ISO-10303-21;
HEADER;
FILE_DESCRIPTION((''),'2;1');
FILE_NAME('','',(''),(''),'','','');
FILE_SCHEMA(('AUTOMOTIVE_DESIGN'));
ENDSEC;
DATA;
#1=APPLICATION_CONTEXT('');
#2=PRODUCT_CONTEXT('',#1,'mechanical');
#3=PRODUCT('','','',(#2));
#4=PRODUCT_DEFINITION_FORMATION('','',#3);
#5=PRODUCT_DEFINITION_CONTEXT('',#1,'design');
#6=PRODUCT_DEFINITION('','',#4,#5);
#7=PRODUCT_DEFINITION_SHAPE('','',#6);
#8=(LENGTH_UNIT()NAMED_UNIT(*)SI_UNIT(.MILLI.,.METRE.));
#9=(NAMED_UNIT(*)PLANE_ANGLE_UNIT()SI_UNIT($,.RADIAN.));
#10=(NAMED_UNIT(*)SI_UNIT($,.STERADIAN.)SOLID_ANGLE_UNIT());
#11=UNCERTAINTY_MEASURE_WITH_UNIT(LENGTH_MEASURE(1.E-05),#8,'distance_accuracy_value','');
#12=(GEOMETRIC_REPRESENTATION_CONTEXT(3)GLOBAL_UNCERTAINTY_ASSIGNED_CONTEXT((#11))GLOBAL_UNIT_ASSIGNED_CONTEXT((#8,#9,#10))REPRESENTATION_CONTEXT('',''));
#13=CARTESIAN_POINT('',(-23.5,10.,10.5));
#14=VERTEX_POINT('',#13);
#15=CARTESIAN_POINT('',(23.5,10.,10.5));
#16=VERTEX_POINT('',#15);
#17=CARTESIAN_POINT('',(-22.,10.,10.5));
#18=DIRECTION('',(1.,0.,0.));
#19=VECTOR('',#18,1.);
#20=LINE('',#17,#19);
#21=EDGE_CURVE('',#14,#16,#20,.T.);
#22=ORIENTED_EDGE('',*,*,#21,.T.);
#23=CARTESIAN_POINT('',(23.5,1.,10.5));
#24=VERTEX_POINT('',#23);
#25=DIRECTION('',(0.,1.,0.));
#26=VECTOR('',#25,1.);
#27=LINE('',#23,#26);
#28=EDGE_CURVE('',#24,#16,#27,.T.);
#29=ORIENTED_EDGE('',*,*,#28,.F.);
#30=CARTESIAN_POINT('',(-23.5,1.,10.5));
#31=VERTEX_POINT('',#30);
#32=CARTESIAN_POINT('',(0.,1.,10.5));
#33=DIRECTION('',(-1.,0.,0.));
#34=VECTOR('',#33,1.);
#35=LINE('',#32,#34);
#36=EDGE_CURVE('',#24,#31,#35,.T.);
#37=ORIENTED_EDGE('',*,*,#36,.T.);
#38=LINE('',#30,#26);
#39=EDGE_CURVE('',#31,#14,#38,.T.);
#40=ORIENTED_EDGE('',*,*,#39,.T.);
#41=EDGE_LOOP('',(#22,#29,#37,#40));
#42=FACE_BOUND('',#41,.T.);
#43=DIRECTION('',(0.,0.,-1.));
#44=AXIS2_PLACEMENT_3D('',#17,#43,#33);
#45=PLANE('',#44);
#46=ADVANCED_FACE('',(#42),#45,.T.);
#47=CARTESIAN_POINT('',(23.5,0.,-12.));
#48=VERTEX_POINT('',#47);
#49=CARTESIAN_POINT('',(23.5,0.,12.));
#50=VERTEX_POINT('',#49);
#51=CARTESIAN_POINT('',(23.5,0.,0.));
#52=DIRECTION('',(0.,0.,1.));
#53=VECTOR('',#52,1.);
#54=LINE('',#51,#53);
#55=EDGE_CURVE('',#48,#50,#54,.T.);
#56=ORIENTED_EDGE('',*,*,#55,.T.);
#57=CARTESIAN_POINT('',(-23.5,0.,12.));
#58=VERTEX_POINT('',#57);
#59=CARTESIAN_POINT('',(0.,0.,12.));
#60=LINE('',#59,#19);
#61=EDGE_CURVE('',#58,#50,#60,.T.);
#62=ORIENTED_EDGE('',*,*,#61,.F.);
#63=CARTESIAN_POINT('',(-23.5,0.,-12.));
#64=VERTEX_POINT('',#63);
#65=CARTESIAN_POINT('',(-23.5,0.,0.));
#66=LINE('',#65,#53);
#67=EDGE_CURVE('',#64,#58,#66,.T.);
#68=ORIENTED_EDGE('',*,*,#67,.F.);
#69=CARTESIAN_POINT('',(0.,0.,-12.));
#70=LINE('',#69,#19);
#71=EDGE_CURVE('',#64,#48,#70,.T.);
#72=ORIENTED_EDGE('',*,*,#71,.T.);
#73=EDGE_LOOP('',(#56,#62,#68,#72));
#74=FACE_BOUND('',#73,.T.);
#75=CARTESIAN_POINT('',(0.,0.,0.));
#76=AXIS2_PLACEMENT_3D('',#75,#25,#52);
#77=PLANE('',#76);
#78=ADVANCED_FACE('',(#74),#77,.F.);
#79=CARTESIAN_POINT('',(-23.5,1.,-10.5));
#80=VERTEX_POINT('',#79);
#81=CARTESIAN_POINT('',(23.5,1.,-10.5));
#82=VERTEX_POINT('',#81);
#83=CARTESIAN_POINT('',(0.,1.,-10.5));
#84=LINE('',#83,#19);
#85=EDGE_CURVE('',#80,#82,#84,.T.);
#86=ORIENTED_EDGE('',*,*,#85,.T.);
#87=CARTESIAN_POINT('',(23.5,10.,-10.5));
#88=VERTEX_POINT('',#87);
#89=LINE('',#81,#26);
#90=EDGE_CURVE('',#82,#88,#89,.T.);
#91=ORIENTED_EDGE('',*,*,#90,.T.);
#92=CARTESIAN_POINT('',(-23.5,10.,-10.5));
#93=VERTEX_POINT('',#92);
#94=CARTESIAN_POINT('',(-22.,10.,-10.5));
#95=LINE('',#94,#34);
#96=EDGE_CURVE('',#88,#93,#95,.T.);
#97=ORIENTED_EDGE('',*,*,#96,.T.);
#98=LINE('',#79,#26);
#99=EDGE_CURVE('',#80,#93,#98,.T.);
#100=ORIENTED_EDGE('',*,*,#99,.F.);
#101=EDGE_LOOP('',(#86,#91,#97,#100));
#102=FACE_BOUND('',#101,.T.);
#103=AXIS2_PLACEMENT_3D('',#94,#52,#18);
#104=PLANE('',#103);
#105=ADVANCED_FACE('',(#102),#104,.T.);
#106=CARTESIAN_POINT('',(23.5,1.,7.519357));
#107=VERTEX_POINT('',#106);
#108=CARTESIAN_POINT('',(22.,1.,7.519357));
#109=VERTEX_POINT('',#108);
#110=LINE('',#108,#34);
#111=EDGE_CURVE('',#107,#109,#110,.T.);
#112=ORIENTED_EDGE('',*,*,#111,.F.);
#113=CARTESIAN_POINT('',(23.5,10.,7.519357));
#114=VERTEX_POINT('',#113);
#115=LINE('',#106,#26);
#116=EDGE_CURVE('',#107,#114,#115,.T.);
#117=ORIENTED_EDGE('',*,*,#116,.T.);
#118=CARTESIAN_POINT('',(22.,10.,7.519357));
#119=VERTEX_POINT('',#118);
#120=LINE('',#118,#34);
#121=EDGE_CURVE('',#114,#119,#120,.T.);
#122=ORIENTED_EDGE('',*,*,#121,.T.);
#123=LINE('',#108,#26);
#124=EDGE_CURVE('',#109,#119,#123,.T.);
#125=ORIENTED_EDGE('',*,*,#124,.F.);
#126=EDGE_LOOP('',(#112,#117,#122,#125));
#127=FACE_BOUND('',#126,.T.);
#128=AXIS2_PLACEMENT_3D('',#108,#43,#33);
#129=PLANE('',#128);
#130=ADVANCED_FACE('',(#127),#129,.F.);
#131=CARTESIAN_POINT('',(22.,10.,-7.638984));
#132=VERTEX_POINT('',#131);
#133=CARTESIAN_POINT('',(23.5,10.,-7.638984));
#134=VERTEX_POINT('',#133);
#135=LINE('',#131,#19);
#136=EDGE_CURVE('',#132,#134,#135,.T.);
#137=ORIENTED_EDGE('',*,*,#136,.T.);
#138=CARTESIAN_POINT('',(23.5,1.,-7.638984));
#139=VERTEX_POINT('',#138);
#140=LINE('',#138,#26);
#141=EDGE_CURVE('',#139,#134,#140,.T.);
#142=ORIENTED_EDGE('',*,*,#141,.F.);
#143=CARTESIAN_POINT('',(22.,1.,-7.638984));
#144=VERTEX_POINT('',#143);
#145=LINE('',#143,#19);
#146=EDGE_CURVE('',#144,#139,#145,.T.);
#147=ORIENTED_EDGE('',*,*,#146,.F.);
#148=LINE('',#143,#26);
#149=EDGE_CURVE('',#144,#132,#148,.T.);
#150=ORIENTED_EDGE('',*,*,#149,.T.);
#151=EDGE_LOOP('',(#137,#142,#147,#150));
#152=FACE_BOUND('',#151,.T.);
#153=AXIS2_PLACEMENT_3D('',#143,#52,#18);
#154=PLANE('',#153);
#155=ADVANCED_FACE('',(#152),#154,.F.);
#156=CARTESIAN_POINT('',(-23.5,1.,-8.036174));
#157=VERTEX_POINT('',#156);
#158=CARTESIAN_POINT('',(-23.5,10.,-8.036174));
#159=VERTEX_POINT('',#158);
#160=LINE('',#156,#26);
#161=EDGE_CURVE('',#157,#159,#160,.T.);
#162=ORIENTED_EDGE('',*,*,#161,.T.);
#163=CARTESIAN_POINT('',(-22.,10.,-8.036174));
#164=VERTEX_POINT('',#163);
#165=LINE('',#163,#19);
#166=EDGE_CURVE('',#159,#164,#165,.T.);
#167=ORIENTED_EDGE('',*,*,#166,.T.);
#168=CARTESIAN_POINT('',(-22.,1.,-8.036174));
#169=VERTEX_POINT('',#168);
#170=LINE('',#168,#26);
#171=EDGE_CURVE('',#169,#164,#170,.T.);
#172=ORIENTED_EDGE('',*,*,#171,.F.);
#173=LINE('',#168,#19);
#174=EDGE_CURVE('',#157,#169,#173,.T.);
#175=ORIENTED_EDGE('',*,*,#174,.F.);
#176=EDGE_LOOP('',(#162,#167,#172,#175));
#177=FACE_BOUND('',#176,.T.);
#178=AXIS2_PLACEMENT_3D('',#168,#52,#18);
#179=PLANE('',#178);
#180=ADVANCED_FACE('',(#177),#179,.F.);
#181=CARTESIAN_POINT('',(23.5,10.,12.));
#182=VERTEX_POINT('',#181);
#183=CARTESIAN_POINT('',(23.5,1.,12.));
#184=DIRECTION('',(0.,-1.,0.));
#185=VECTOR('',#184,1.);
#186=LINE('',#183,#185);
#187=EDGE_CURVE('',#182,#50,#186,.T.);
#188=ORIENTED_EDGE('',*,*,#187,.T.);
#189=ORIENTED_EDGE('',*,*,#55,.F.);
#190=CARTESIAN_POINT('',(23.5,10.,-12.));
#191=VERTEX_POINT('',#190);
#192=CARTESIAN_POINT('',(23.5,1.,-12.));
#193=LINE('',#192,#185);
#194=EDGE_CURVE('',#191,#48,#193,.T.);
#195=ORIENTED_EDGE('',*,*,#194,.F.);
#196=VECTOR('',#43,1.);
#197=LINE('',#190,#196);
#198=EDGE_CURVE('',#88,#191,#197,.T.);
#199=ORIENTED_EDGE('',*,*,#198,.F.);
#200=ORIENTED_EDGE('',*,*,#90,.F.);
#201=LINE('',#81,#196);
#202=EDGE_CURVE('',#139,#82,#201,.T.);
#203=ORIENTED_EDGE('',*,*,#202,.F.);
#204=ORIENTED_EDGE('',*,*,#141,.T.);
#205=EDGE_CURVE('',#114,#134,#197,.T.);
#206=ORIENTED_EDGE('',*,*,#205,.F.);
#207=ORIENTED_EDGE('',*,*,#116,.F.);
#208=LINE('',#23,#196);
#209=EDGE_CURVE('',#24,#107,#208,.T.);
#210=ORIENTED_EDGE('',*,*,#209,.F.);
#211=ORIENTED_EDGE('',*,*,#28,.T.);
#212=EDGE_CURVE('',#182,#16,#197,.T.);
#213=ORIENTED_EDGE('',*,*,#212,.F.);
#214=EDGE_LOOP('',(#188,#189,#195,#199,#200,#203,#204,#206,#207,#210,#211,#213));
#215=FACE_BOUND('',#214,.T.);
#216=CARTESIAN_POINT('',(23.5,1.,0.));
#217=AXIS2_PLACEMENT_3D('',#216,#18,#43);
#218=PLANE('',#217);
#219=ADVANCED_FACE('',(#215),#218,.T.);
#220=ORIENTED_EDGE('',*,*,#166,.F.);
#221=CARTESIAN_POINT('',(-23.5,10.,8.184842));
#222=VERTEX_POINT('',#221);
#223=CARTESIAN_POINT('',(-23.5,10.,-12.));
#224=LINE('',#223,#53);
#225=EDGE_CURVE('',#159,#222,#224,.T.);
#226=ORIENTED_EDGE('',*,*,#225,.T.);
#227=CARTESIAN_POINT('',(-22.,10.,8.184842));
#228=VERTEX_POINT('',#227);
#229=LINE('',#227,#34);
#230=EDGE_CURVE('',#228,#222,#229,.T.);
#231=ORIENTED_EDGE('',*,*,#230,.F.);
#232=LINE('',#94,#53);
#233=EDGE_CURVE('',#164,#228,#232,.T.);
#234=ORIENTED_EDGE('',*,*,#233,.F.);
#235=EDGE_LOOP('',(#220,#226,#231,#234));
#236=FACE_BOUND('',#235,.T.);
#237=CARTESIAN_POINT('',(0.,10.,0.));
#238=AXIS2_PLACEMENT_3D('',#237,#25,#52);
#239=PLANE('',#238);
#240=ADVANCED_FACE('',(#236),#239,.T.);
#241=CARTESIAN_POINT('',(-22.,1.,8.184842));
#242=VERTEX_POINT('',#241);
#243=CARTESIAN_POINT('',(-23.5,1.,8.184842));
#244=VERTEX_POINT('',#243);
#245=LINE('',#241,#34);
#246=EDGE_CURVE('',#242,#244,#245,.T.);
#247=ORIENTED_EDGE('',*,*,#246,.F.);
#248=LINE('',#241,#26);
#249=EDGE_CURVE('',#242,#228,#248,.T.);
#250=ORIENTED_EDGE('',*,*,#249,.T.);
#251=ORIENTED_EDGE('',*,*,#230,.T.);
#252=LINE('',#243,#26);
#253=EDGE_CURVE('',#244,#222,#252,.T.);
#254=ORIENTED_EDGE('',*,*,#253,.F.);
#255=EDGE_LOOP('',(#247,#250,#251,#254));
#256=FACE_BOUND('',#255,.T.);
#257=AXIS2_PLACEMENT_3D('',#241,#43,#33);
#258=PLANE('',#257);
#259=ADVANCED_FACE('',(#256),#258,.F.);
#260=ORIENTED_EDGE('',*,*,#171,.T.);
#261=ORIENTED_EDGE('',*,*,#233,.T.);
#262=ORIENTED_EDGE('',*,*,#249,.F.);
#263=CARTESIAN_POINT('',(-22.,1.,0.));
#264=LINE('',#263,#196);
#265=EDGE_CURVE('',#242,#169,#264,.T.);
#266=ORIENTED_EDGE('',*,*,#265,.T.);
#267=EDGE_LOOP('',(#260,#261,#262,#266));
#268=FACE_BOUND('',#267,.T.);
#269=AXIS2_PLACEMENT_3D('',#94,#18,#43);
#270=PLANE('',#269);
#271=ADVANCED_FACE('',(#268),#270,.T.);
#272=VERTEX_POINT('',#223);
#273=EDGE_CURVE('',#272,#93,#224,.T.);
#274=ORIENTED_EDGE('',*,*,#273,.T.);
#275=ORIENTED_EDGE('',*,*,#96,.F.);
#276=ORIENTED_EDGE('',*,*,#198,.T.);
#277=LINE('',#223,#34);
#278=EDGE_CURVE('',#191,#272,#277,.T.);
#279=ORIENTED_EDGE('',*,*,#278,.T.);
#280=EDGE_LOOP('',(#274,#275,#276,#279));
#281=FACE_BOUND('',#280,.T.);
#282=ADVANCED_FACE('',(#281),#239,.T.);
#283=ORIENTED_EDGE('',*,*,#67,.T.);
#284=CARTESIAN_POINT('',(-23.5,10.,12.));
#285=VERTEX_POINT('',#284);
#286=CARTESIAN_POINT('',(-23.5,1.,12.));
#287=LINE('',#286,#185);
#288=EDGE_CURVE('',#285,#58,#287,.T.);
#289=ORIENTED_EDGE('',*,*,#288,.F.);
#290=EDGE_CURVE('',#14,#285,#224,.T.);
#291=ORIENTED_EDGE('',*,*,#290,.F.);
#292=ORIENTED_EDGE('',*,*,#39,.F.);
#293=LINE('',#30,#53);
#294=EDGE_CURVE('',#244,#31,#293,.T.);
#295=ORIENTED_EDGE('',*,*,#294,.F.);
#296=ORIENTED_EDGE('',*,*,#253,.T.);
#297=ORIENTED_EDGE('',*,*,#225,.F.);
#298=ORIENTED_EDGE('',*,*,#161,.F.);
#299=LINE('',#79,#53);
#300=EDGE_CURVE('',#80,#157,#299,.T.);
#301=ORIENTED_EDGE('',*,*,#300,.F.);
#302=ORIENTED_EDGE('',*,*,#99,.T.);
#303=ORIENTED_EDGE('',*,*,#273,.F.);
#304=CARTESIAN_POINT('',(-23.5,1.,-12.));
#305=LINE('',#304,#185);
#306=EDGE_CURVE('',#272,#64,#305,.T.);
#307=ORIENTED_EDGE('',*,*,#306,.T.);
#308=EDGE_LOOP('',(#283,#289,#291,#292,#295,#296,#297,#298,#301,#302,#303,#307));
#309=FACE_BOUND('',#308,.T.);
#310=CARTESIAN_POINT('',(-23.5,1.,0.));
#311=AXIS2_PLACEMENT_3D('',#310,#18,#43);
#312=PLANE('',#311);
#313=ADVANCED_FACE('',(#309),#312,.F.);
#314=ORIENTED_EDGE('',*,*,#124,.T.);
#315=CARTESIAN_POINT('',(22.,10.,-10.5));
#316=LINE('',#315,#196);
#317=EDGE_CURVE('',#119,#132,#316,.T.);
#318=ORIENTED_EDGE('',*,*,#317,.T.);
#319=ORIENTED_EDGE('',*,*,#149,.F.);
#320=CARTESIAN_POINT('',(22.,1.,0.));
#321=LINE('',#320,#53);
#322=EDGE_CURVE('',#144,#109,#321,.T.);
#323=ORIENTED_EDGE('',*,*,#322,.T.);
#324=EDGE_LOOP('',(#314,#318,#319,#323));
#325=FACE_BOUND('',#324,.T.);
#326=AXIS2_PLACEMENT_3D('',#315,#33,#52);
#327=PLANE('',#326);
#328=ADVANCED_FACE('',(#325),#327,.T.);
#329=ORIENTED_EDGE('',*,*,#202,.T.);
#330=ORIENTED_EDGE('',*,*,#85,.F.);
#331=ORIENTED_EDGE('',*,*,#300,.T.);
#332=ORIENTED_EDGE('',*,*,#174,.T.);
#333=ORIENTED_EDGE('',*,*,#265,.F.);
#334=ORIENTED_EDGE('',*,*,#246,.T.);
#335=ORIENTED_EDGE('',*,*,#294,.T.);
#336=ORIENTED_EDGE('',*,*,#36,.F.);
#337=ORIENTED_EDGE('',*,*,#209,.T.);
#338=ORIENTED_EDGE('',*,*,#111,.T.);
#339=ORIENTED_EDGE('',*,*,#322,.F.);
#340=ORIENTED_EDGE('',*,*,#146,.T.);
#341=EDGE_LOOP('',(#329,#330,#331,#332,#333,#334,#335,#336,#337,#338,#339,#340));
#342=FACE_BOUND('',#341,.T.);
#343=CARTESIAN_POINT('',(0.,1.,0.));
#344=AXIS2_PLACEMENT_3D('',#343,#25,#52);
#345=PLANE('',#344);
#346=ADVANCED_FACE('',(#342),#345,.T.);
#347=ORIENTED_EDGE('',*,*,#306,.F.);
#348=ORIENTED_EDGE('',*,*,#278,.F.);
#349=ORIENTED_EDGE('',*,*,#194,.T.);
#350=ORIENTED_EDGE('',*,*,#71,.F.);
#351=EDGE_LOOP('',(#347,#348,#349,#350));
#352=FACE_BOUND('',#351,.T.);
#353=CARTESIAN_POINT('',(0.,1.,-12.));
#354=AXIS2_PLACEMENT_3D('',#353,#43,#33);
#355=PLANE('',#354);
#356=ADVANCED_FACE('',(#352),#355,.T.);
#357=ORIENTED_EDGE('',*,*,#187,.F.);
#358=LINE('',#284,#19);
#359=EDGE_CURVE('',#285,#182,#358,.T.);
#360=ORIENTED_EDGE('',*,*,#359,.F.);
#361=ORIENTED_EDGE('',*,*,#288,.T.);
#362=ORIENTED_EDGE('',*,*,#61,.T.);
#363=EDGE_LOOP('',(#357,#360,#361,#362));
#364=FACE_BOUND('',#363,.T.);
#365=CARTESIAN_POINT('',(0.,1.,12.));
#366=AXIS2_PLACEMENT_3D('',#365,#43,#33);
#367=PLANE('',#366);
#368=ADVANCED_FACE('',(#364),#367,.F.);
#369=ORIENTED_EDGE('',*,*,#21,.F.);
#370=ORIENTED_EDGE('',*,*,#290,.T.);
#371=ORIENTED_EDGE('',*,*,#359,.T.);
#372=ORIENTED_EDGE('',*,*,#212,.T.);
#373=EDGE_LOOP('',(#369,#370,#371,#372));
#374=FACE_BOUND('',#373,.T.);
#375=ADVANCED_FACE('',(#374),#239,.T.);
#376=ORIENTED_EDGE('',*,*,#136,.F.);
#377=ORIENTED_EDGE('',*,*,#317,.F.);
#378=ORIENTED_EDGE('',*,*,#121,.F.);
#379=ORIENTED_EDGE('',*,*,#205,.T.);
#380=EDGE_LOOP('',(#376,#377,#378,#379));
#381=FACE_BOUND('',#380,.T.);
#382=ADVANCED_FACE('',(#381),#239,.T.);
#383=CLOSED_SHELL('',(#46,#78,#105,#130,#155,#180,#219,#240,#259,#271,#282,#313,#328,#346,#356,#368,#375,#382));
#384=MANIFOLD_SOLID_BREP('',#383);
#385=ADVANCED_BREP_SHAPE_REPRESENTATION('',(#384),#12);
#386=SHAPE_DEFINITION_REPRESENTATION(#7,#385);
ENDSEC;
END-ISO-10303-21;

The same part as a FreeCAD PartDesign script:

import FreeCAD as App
import Part
import Sketcher

doc = App.newDocument("Part")
params = doc.addObject("Spreadsheet::Sheet", "Params")
for row, (alias, value) in enumerate([
    ("sketch1_width", "47 mm"),
    ("sketch1_height", "24 mm"),
    ("pad1_length", "1 mm"),
    ("sketch2_width", "47 mm"),
    ("sketch2_width2", "44 mm"),
    ("sketch2_height", "24 mm"),
    ("sketch2_height2", "21 mm"),
    ("pad2_length", "10 mm"),
    ("sketch3_width", "1.5 mm"),
    ("pocket1_length", "9 mm"),
], start=1):
    params.set(f"A{row}", alias)
    params.set(f"B{row}", "=" + value)
    params.setAlias(f"B{row}", alias)

body = doc.addObject("PartDesign::Body", "Body")

# Sketch on XZ plane
sketch1 = body.newObject("Sketcher::SketchObject", "Sketch")
sketch1.AttachmentSupport = (doc.getObject("XZ_Plane"), [""])
sketch1.MapMode = "FlatFace"
sketch1.addGeometry([
    Part.LineSegment(App.Vector(-24, -12, 0), App.Vector(-24, 12, 0)),
    Part.LineSegment(App.Vector(-24, 12, 0), App.Vector(24, 12, 0)),
    Part.LineSegment(App.Vector(24, 12, 0), App.Vector(24, -12, 0)),
    Part.LineSegment(App.Vector(24, -12, 0), App.Vector(-24, -12, 0)),
], False)
sketch1.addConstraint([
    Sketcher.Constraint("Coincident", 0, 2, 1, 1),
    Sketcher.Constraint("Coincident", 1, 2, 2, 1),
    Sketcher.Constraint("Coincident", 2, 2, 3, 1),
    Sketcher.Constraint("Coincident", 3, 2, 0, 1),
    Sketcher.Constraint("Vertical", 0),
    Sketcher.Constraint("Horizontal", 1),
    Sketcher.Constraint("Vertical", 2),
    Sketcher.Constraint("Horizontal", 3),
    Sketcher.Constraint("Symmetric", 0, 2, 2, 2, -1, 1),
    Sketcher.Constraint("DistanceX", 1, 1, 1, 2, 47.0),
    Sketcher.Constraint("DistanceY", 0, 1, 0, 2, 24.0),
])
sketch1.setExpression("Constraints[9]", "Params.sketch1_width")
sketch1.setExpression("Constraints[10]", "Params.sketch1_height")
pad1 = body.newObject("PartDesign::Pad", "Pad")
pad1.Profile = sketch1
pad1.setExpression("Length", "Params.pad1_length")
pad1.Reversed = True

# Sketch on XZ plane
sketch2 = body.newObject("Sketcher::SketchObject", "Sketch001")
sketch2.AttachmentSupport = (doc.getObject("XZ_Plane"), [""])
sketch2.MapMode = "FlatFace"
sketch2.addGeometry([
    Part.LineSegment(App.Vector(-24, -12, 0), App.Vector(-24, 12, 0)),  # 0
    Part.LineSegment(App.Vector(-24, 12, 0), App.Vector(24, 12, 0)),  # 1
    Part.LineSegment(App.Vector(24, 12, 0), App.Vector(24, -12, 0)),  # 2
    Part.LineSegment(App.Vector(24, -12, 0), App.Vector(-24, -12, 0)),  # 3
    Part.LineSegment(App.Vector(22, 10, 0), App.Vector(-22, 10, 0)),  # 4
    Part.LineSegment(App.Vector(-22, 10, 0), App.Vector(-22, -10, 0)),  # 5
    Part.LineSegment(App.Vector(-22, -10, 0), App.Vector(22, -10, 0)),  # 6
    Part.LineSegment(App.Vector(22, -10, 0), App.Vector(22, 10, 0)),  # 7
], False)
sketch2.addConstraint([
    Sketcher.Constraint("Coincident", 0, 2, 1, 1),
    Sketcher.Constraint("Coincident", 1, 2, 2, 1),
    Sketcher.Constraint("Coincident", 2, 2, 3, 1),
    Sketcher.Constraint("Coincident", 3, 2, 0, 1),
    Sketcher.Constraint("Coincident", 4, 2, 5, 1),
    Sketcher.Constraint("Coincident", 5, 2, 6, 1),
    Sketcher.Constraint("Coincident", 6, 2, 7, 1),
    Sketcher.Constraint("Coincident", 7, 2, 4, 1),
    Sketcher.Constraint("Vertical", 0),
    Sketcher.Constraint("Horizontal", 1),
    Sketcher.Constraint("Vertical", 2),
    Sketcher.Constraint("Horizontal", 3),
    Sketcher.Constraint("Horizontal", 4),
    Sketcher.Constraint("Vertical", 5),
    Sketcher.Constraint("Horizontal", 6),
    Sketcher.Constraint("Vertical", 7),
    Sketcher.Constraint("Symmetric", 0, 2, 2, 2, -1, 1),
    Sketcher.Constraint("Symmetric", 4, 2, 6, 2, -1, 1),
    Sketcher.Constraint("DistanceX", 1, 1, 1, 2, 47.0),
    Sketcher.Constraint("DistanceX", 4, 2, 4, 1, 44.0),
    Sketcher.Constraint("DistanceY", 0, 1, 0, 2, 24.0),
    Sketcher.Constraint("DistanceY", 5, 2, 5, 1, 21.0),
])
sketch2.setExpression("Constraints[18]", "Params.sketch2_width")
sketch2.setExpression("Constraints[19]", "Params.sketch2_width2")
sketch2.setExpression("Constraints[20]", "Params.sketch2_height")
sketch2.setExpression("Constraints[21]", "Params.sketch2_height2")
pad2 = body.newObject("PartDesign::Pad", "Pad001")
pad2.Profile = sketch2
pad2.setExpression("Length", "Params.pad2_length")
pad2.Reversed = True

# Sketch on XZ plane
sketch3 = body.newObject("Sketcher::SketchObject", "Sketch002")
sketch3.AttachmentSupport = (doc.getObject("XZ_Plane"), [""])
sketch3.MapMode = "FlatFace"
sketch3.AttachmentOffset = App.Placement(App.Vector(0, 0, -10), App.Rotation())
sketch3.addGeometry([
    Part.LineSegment(App.Vector(22, -10.5, 0), App.Vector(22, -7.6, 0)),  # 0
    Part.LineSegment(App.Vector(22, -7.6, 0), App.Vector(23.5, -7.6, 0)),  # 1
    Part.LineSegment(App.Vector(23.5, -7.6, 0), App.Vector(23.5, -10.5, 0)),  # 2
    Part.LineSegment(App.Vector(23.5, -10.5, 0), App.Vector(22, -10.5, 0)),  # 3
    Part.LineSegment(App.Vector(22, 7.5, 0), App.Vector(22, 10.5, 0)),  # 4
    Part.LineSegment(App.Vector(22, 10.5, 0), App.Vector(23.5, 10.5, 0)),  # 5
    Part.LineSegment(App.Vector(23.5, 10.5, 0), App.Vector(23.5, 7.5, 0)),  # 6
    Part.LineSegment(App.Vector(23.5, 7.5, 0), App.Vector(22, 7.5, 0)),  # 7
    Part.LineSegment(App.Vector(-23.5, -10.5, 0), App.Vector(-23.5, -8, 0)),  # 8
    Part.LineSegment(App.Vector(-23.5, -8, 0), App.Vector(-22, -8, 0)),  # 9
    Part.LineSegment(App.Vector(-22, -8, 0), App.Vector(-22, -10.5, 0)),  # 10
    Part.LineSegment(App.Vector(-22, -10.5, 0), App.Vector(-23.5, -10.5, 0)),  # 11
    Part.LineSegment(App.Vector(-23.5, 8.2, 0), App.Vector(-23.5, 10.5, 0)),  # 12
    Part.LineSegment(App.Vector(-23.5, 10.5, 0), App.Vector(-22, 10.5, 0)),  # 13
    Part.LineSegment(App.Vector(-22, 10.5, 0), App.Vector(-22, 8.2, 0)),  # 14
    Part.LineSegment(App.Vector(-22, 8.2, 0), App.Vector(-23.5, 8.2, 0)),  # 15
], False)
sketch3.addConstraint([
    Sketcher.Constraint("Coincident", 0, 2, 1, 1),
    Sketcher.Constraint("Coincident", 1, 2, 2, 1),
    Sketcher.Constraint("Coincident", 2, 2, 3, 1),
    Sketcher.Constraint("Coincident", 3, 2, 0, 1),
    Sketcher.Constraint("Coincident", 4, 2, 5, 1),
    Sketcher.Constraint("Coincident", 5, 2, 6, 1),
    Sketcher.Constraint("Coincident", 6, 2, 7, 1),
    Sketcher.Constraint("Coincident", 7, 2, 4, 1),
    Sketcher.Constraint("Coincident", 8, 2, 9, 1),
    Sketcher.Constraint("Coincident", 9, 2, 10, 1),
    Sketcher.Constraint("Coincident", 10, 2, 11, 1),
    Sketcher.Constraint("Coincident", 11, 2, 8, 1),
    Sketcher.Constraint("Coincident", 12, 2, 13, 1),
    Sketcher.Constraint("Coincident", 13, 2, 14, 1),
    Sketcher.Constraint("Coincident", 14, 2, 15, 1),
    Sketcher.Constraint("Coincident", 15, 2, 12, 1),
    Sketcher.Constraint("Vertical", 0),
    Sketcher.Constraint("Horizontal", 1),
    Sketcher.Constraint("Vertical", 2),
    Sketcher.Constraint("Horizontal", 3),
    Sketcher.Constraint("Vertical", 4),
    Sketcher.Constraint("Horizontal", 5),
    Sketcher.Constraint("Vertical", 6),
    Sketcher.Constraint("Horizontal", 7),
    Sketcher.Constraint("Vertical", 8),
    Sketcher.Constraint("Horizontal", 9),
    Sketcher.Constraint("Vertical", 10),
    Sketcher.Constraint("Horizontal", 11),
    Sketcher.Constraint("Vertical", 12),
    Sketcher.Constraint("Horizontal", 13),
    Sketcher.Constraint("Vertical", 14),
    Sketcher.Constraint("Horizontal", 15),
    Sketcher.Constraint("Symmetric", 4, 2, 10, 2, -1, 1),
    Sketcher.Constraint("Symmetric", 2, 2, 12, 2, -1, 1),
    Sketcher.Constraint("Symmetric", 3, 2, 10, 2, -2),
    Sketcher.Constraint("Vertical", 2, 2, 5, 2),
    Sketcher.Constraint("Vertical", 11, 2, 12, 2),
    Sketcher.Constraint("Vertical", 10, 2, 13, 2),
    Sketcher.Constraint("DistanceX", 1, 1, 1, 2, 1.5),
    Sketcher.Constraint("DistanceX", -1, 1, 0, 2, 22.0),
    Sketcher.Constraint("DistanceY", 3, 2, 4, 2, 21.0),
    Sketcher.Constraint("DistanceY", 0, 1, 0, 2, 2.861016),
    Sketcher.Constraint("DistanceY", 4, 1, 4, 2, 2.980643),
    Sketcher.Constraint("DistanceY", 8, 1, 8, 2, 2.463826),
    Sketcher.Constraint("DistanceY", 12, 1, 12, 2, 2.315158),
])
sketch3.setExpression("Constraints[38]", "Params.sketch3_width")
pocket1 = body.newObject("PartDesign::Pocket", "Pocket")
pocket1.Profile = sketch3
pocket1.setExpression("Length", "Params.pocket1_length")
pocket1.Reversed = True

doc.recompute()
